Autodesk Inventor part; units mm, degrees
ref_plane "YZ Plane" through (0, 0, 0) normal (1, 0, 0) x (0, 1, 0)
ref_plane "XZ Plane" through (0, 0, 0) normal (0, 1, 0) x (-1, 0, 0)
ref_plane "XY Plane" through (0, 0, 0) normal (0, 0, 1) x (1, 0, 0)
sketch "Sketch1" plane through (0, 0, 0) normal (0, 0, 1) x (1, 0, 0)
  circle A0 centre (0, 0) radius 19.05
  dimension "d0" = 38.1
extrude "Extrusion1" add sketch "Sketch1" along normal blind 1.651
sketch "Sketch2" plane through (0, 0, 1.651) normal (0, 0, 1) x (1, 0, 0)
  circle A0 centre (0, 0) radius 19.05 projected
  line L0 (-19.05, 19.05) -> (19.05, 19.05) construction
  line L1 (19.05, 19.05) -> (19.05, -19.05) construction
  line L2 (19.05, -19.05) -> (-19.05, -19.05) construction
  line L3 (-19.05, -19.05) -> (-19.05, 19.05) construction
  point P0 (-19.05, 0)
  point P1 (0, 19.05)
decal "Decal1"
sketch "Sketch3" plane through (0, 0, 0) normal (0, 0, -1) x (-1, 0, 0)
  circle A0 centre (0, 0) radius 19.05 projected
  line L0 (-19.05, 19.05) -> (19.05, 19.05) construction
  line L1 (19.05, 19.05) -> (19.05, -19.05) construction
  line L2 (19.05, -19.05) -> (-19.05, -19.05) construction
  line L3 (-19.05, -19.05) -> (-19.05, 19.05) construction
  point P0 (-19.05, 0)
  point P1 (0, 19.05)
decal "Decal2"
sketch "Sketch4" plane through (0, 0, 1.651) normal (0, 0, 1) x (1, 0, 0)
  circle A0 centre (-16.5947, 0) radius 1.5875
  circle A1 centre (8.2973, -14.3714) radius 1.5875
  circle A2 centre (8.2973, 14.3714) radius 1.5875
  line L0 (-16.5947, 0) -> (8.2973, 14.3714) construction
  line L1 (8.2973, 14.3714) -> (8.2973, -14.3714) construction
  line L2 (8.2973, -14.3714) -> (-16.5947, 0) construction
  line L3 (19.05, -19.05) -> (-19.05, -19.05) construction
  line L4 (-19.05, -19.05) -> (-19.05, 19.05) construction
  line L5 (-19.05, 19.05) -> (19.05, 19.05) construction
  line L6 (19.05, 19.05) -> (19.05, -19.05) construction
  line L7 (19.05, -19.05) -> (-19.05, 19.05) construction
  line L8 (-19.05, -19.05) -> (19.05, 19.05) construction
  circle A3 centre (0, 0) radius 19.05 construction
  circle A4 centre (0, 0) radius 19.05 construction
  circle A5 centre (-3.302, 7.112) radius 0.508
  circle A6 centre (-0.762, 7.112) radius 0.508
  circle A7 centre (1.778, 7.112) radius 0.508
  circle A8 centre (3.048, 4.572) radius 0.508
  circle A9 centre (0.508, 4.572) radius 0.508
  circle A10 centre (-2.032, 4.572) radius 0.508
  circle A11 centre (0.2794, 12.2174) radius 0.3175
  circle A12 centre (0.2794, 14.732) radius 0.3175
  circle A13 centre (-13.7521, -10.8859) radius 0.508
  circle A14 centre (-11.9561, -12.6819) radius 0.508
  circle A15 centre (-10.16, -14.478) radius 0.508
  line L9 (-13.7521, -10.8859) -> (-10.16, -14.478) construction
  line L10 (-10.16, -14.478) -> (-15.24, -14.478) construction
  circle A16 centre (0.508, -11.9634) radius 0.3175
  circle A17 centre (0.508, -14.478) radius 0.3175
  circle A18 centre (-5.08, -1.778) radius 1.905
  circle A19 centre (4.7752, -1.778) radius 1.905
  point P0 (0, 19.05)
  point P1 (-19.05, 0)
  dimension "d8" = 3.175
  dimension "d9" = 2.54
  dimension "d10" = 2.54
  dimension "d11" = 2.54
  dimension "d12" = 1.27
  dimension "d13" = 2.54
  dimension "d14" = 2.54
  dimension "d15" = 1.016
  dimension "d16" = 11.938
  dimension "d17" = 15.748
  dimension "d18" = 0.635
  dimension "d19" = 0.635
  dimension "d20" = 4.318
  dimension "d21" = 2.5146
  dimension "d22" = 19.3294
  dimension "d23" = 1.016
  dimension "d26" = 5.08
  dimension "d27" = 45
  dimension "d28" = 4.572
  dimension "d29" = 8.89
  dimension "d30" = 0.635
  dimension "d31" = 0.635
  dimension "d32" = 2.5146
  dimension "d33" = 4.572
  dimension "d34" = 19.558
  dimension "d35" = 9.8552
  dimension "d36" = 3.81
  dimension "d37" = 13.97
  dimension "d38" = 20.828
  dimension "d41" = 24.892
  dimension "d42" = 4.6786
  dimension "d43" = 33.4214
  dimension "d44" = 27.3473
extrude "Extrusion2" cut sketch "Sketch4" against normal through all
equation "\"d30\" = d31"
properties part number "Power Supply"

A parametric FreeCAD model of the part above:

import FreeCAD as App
import Part
import Sketcher
from FreeCAD import Vector
Q = App.Units.Quantity

doc = App.newDocument("Part")
body = doc.addObject("PartDesign::Body", "Body")

# Sketch on XY plane
sketch1 = doc.addObject("Sketcher::SketchObject", "Sketch")
body.addObject(sketch1)
sketch1.AttachmentSupport = (doc.XY_Plane, [""])
sketch1.MapMode = "FlatFace"
sketch1.addGeometry(Part.Circle(Vector(0, 0, 0), Vector(0, 0, 1), 19), False)
sketch1.addConstraint([
    Sketcher.Constraint("Coincident", 0, 3, -1, 1),
    Sketcher.Constraint("Diameter", 0, Q("1.5 in")),
])
pad1 = doc.addObject("PartDesign::Pad", "Pad")
body.addObject(pad1)
pad1.Profile = sketch1
pad1.Length = Q("0.065 in")

# Sketch on XY plane
sketch2 = doc.addObject("Sketcher::SketchObject", "Sketch001")
body.addObject(sketch2)
sketch2.AttachmentSupport = (doc.XY_Plane, [""])
sketch2.MapMode = "FlatFace"
sketch2.AttachmentOffset = App.Placement(Vector(0, 0, 0.065 * 25.4), App.Rotation())
sketch2.addGeometry([
    Part.Circle(Vector(-16.59, 0, 0), Vector(0, 0, 1), 1.59),  # 0
    Part.Circle(Vector(8.3, -14.37, 0), Vector(0, 0, 1), 1.59),  # 1
    Part.Circle(Vector(8.3, 14.37, 0), Vector(0, 0, 1), 1.59),  # 2
    Part.Circle(Vector(-3.3, 7.11, 0), Vector(0, 0, 1), 0.51),  # 3
    Part.Circle(Vector(-0.76, 7.11, 0), Vector(0, 0, 1), 0.51),  # 4
    Part.Circle(Vector(1.78, 7.11, 0), Vector(0, 0, 1), 0.51),  # 5
    Part.Circle(Vector(3.05, 4.57, 0), Vector(0, 0, 1), 0.51),  # 6
    Part.Circle(Vector(0.51, 4.57, 0), Vector(0, 0, 1), 0.51),  # 7
    Part.Circle(Vector(-2.03, 4.57, 0), Vector(0, 0, 1), 0.51),  # 8
    Part.Circle(Vector(0.28, 12.22, 0), Vector(0, 0, 1), 0.32),  # 9
    Part.Circle(Vector(0.28, 14.73, 0), Vector(0, 0, 1), 0.32),  # 10
    Part.Circle(Vector(-13.75, -10.89, 0), Vector(0, 0, 1), 0.51),  # 11
    Part.Circle(Vector(-11.96, -12.68, 0), Vector(0, 0, 1), 0.51),  # 12
    Part.Circle(Vector(-10.16, -14.48, 0), Vector(0, 0, 1), 0.51),  # 13
    Part.Circle(Vector(0.51, -11.96, 0), Vector(0, 0, 1), 0.32),  # 14
    Part.Circle(Vector(0.51, -14.48, 0), Vector(0, 0, 1), 0.32),  # 15
    Part.Circle(Vector(-5.08, -1.78, 0), Vector(0, 0, 1), 1.91),  # 16
    Part.Circle(Vector(4.78, -1.78, 0), Vector(0, 0, 1), 1.91),  # 17
], False)
sketch2.addConstraint([
    Sketcher.Constraint("Equal", 0, 1),
    Sketcher.Constraint("Equal", 1, 2),
    Sketcher.Constraint("Equal", 3, 4),
    Sketcher.Constraint("Equal", 4, 5),
    Sketcher.Constraint("Equal", 5, 6),
    Sketcher.Constraint("Equal", 6, 7),
    Sketcher.Constraint("Equal", 7, 8),
    Sketcher.Constraint("Equal", 9, 10),
    Sketcher.Constraint("Equal", 8, 11),
    Sketcher.Constraint("Equal", 11, 12),
    Sketcher.Constraint("Equal", 12, 13),
    Sketcher.Constraint("Equal", 10, 14),
    Sketcher.Constraint("Equal", 14, 15),
    Sketcher.Constraint("Equal", 16, 17),
    Sketcher.Constraint("Symmetric", 1, 3, 2, 3, -1),
    Sketcher.Constraint("PointOnObject", 0, 3, -1),
    Sketcher.Constraint("Horizontal", 3, 3, 4, 3),
    Sketcher.Constraint("Horizontal", 4, 3, 5, 3),
    Sketcher.Constraint("Horizontal", 6, 3, 7, 3),
    Sketcher.Constraint("Horizontal", 7, 3, 8, 3),
    Sketcher.Constraint("Horizontal", 13, 3, 15, 3),
    Sketcher.Constraint("Horizontal", 16, 3, 17, 3),
    Sketcher.Constraint("Vertical", 9, 3, 10, 3),
    Sketcher.Constraint("Vertical", 7, 3, 14, 3),
    Sketcher.Constraint("Vertical", 14, 3, 15, 3),
    Sketcher.Constraint("Diameter", 3, Q("0.04 in")),
    Sketcher.Constraint("Diameter", 16, Q("0.15 in")),
    Sketcher.Constraint("Diameter", 0, Q("0.125 in")),
    Sketcher.Constraint("Diameter", 9, Q("0.025 in")),
    Sketcher.Constraint("DistanceX", 16, 3, -1, 1, Q("0.2 in")),
    Sketcher.Constraint("DistanceX", 3, 3, 4, 3, Q("0.1 in")),
    Sketcher.Constraint("DistanceX", 4, 3, 5, 3, Q("0.1 in")),
    Sketcher.Constraint("DistanceY", 6, 3, 5, 3, Q("0.1 in")),
    Sketcher.Constraint("DistanceX", 7, 3, 6, 3, Q("0.1 in")),
    Sketcher.Constraint("DistanceX", 8, 3, 7, 3, Q("0.1 in")),
    Sketcher.Constraint("DistanceY", -1, 1, 6, 3, Q("0.18 in")),
    Sketcher.Constraint("DistanceX", 0, 3, 1, 3, Q("0.98 in")),
    Sketcher.Constraint("DistanceX", 5, 3, 6, 3, Q("0.05 in")),
    Sketcher.Constraint("DistanceY", 16, 3, 3, 3, Q("0.35 in")),
    Sketcher.Constraint("DistanceX", 16, 3, 4, 3, Q("0.17 in")),
    Sketcher.Constraint("DistanceY", 9, 3, 10, 3, Q("0.099 in")),
    Sketcher.Constraint("DistanceY", 13, 3, 14, 3, Q("0.099 in")),
    Sketcher.Constraint("DistanceX", 16, 3, 17, 3, Q("0.388 in")),
    Sketcher.Constraint("DistanceX", 13, 3, -1, 1, Q("0.4 in")),
    Sketcher.Constraint("DistanceY", 4, 3, 10, 3, Q("0.3 in")),
    Sketcher.Constraint("DistanceY", 13, 3, -1, 1, Q("0.57 in")),
    Sketcher.Constraint("DistanceX", -1, 1, 9, 3, Q("0.011 in")),
    Sketcher.Constraint("DistanceY", 1, 3, -1, 1, Q("0.5658 in")),
    Sketcher.Constraint("DistanceX", 11, 3, 12, 3, Q("0.0707 in")),
    Sketcher.Constraint("DistanceY", 12, 3, 11, 3, Q("0.0707 in")),
    Sketcher.Constraint("DistanceX", 0, 3, -1, 1, 16.5947),
    Sketcher.Constraint("DistanceX", 11, 3, -1, 1, 13.752),
    Sketcher.Constraint("DistanceY", 11, 3, -1, 1, 10.886),
])
pocket1 = doc.addObject("PartDesign::Pocket", "Pocket")
body.addObject(pocket1)
pocket1.Profile = sketch2
pocket1.Type = "ThroughAll"

doc.recompute()
